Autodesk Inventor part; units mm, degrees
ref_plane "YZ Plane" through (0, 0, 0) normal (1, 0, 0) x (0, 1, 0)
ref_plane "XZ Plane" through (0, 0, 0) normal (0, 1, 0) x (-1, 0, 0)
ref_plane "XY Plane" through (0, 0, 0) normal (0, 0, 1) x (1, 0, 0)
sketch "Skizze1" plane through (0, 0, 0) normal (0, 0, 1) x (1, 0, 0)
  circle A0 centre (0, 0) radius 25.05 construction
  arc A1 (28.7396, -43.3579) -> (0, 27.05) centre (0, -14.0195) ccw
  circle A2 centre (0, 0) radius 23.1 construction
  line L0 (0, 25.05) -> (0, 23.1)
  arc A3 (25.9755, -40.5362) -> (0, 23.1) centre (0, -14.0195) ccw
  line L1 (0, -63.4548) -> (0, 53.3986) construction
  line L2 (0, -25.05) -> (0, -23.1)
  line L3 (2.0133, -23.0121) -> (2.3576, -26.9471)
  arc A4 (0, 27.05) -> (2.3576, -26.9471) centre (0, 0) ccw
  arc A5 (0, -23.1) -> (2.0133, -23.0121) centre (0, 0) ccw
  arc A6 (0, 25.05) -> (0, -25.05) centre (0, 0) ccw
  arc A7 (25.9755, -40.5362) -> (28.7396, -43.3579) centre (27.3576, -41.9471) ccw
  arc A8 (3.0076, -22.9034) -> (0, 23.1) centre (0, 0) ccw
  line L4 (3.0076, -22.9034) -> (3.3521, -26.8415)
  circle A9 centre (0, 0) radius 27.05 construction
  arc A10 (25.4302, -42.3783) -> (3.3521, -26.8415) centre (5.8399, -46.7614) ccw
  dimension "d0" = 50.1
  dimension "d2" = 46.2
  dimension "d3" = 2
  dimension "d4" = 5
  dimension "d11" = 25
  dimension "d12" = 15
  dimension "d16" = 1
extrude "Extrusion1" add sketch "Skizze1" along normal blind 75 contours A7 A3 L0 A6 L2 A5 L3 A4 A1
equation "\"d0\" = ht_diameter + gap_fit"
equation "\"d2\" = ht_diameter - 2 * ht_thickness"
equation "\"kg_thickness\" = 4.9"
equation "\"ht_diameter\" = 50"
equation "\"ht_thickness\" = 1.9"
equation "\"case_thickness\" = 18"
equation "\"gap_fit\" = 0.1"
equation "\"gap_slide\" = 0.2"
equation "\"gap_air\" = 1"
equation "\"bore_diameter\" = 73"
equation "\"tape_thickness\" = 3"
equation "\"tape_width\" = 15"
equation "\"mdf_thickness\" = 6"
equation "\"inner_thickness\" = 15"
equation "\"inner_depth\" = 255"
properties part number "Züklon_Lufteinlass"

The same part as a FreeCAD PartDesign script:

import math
import FreeCAD as App
import Part
import Sketcher
Q = App.Units.Quantity

doc = App.newDocument("Part")
body = doc.addObject("PartDesign::Body", "Body")

# Sketch on XY plane
sketch1 = body.newObject("Sketcher::SketchObject", "Sketch")
sketch1.AttachmentSupport = (doc.getObject("XY_Plane"), [""])
sketch1.MapMode = "FlatFace"
sketch1.addGeometry([
    Part.ArcOfCircle(Part.Circle(App.Vector(27.4, -41.9, 0), App.Vector(0, 0, 1), 2), math.radians(134), math.radians(314)),  # 0
    Part.ArcOfCircle(Part.Circle(App.Vector(0, -14, 0), App.Vector(0, 0, 1), 41.1), math.radians(-46), math.radians(90)),  # 1
    Part.ArcOfCircle(Part.Circle(App.Vector(0, 0, 0), App.Vector(0, 0, 1), 27.1), math.radians(90), math.radians(275)),  # 2
    Part.LineSegment(App.Vector(2.4, -26.9, 0), App.Vector(2, -23, 0)),  # 3
    Part.ArcOfCircle(Part.Circle(App.Vector(0, 0, 0), App.Vector(0, 0, 1), 23.1), math.radians(-90), math.radians(-85)),  # 4
    Part.LineSegment(App.Vector(0, -23.1, 0), App.Vector(0, -25.1, 0)),  # 5
    Part.ArcOfCircle(Part.Circle(App.Vector(0, 0, 0), App.Vector(0, 0, 1), 25.1), math.radians(90), math.radians(270)),  # 6
    Part.LineSegment(App.Vector(0, 25.1, 0), App.Vector(0, 23.1, 0)),  # 7
    Part.ArcOfCircle(Part.Circle(App.Vector(0, -14, 0), App.Vector(0, 0, 1), 37.1), math.radians(-46), math.radians(90)),  # 8
], False)
sketch1.addConstraint([
    Sketcher.Constraint("Tangent", 0, 2, 1, 1),
    Sketcher.Constraint("Tangent", 1, 2, 2, 1),
    Sketcher.Constraint("Coincident", 2, 2, 3, 1),
    Sketcher.Constraint("Coincident", 3, 2, 4, 2),
    Sketcher.Constraint("Coincident", 4, 1, 5, 1),
    Sketcher.Constraint("Coincident", 5, 2, 6, 2),
    Sketcher.Constraint("Coincident", 6, 1, 7, 1),
    Sketcher.Constraint("Coincident", 7, 2, 8, 2),
    Sketcher.Constraint("Tangent", 8, 1, 0, 1),
    Sketcher.Constraint("Vertical", 5),
    Sketcher.Constraint("Vertical", 7),
    Sketcher.Constraint("Coincident", 2, 3, -1, 1),
    Sketcher.Constraint("Coincident", 6, 3, -1, 1),
    Sketcher.Constraint("Coincident", 8, 3, 1, 3),
    Sketcher.Constraint("Symmetric", 4, 1, 7, 2, -1, 1),
    Sketcher.Constraint("PointOnObject", 1, 3, -2),
    Sketcher.Constraint("PointOnObject", 4, 3, -2),
    Sketcher.Constraint("PointOnObject", 4, 1, -2),
    Sketcher.Constraint("Radius", 6, 25.05),
    Sketcher.Constraint("DistanceY", 6, 1, 1, 2, 2.0),
    Sketcher.Constraint("Angle", 3, Q("95.0005 deg")),
    Sketcher.Constraint("Radius", 0, 1.975),
    Sketcher.Constraint("Radius", 1, 41.0695),
    Sketcher.Constraint("Radius", 4, 23.1014),
    Sketcher.Constraint("DistanceY", 0, 3, -1, 1, 41.947),
    Sketcher.Constraint("DistanceY", 2, 2, -1, 1, 26.947),
])
pad1 = body.newObject("PartDesign::Pad", "Pad")
pad1.Profile = sketch1
pad1.Length = 75

doc.recompute()
